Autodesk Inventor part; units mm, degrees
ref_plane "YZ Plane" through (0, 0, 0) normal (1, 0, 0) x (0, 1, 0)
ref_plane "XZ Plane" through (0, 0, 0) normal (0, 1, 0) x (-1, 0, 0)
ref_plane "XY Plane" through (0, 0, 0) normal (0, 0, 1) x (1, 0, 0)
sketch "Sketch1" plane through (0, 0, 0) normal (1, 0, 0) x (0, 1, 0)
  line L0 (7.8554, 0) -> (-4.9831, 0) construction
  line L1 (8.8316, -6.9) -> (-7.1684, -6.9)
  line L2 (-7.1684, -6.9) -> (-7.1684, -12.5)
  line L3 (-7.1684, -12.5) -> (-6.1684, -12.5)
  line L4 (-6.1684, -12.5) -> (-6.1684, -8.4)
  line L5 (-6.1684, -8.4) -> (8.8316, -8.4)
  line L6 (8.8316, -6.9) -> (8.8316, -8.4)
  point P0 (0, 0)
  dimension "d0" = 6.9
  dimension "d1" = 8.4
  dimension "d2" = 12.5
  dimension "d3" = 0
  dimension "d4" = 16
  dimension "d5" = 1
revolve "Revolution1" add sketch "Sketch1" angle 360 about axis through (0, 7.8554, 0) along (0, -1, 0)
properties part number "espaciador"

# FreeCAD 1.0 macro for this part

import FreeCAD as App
import Part
import Sketcher

doc = App.newDocument("Part")
body = doc.addObject("PartDesign::Body", "Body")

# Sketch on YZ plane
sketch1 = body.newObject("Sketcher::SketchObject", "Sketch")
sketch1.AttachmentSupport = (doc.getObject("YZ_Plane"), [""])
sketch1.MapMode = "FlatFace"
sketch1.addGeometry(Part.LineSegment(App.Vector(8.8, -8.4, 0), App.Vector(8.8, -6.9, 0)), False)
sketch1.addGeometry(Part.LineSegment(App.Vector(8.8, -6.9, 0), App.Vector(-7.2, -6.9, 0)), False)
sketch1.addGeometry(Part.LineSegment(App.Vector(-7.2, -6.9, 0), App.Vector(-7.2, -12.5, 0)), False)
sketch1.addGeometry(Part.LineSegment(App.Vector(-7.2, -12.5, 0), App.Vector(-6.2, -12.5, 0)), False)
sketch1.addGeometry(Part.LineSegment(App.Vector(-6.2, -12.5, 0), App.Vector(-6.2, -8.4, 0)), False)
sketch1.addGeometry(Part.LineSegment(App.Vector(-6.2, -8.4, 0), App.Vector(8.8, -8.4, 0)), False)
sketch1.addConstraint(Sketcher.Constraint("Coincident", 0, 2, 1, 1))
sketch1.addConstraint(Sketcher.Constraint("Coincident", 1, 2, 2, 1))
sketch1.addConstraint(Sketcher.Constraint("Coincident", 2, 2, 3, 1))
sketch1.addConstraint(Sketcher.Constraint("Coincident", 3, 2, 4, 1))
sketch1.addConstraint(Sketcher.Constraint("Coincident", 4, 2, 5, 1))
sketch1.addConstraint(Sketcher.Constraint("Coincident", 5, 2, 0, 1))
sketch1.addConstraint(Sketcher.Constraint("Vertical", 0))
sketch1.addConstraint(Sketcher.Constraint("Horizontal", 1))
sketch1.addConstraint(Sketcher.Constraint("Vertical", 2))
sketch1.addConstraint(Sketcher.Constraint("Horizontal", 3))
sketch1.addConstraint(Sketcher.Constraint("Vertical", 4))
sketch1.addConstraint(Sketcher.Constraint("Horizontal", 5))
sketch1.addConstraint(Sketcher.Constraint("DistanceX", 1, 2, 1, 1, 16.0))
sketch1.addConstraint(Sketcher.Constraint("DistanceX", 3, 1, 3, 2, 1.0))
sketch1.addConstraint(Sketcher.Constraint("DistanceY", 0, 2, -1, 1, 6.9))
sketch1.addConstraint(Sketcher.Constraint("DistanceY", 2, 2, -1, 1, 12.5))
sketch1.addConstraint(Sketcher.Constraint("DistanceY", 4, 2, -1, 1, 8.4))
sketch1.addConstraint(Sketcher.Constraint("DistanceX", -1, 1, 0, 2, 8.8316))
revolution = body.newObject("PartDesign::Revolution", "Revolution")
revolution.Profile = sketch1
revolution.ReferenceAxis = (sketch1, ["H_Axis"])
revolution.Angle = 360

doc.recompute()
